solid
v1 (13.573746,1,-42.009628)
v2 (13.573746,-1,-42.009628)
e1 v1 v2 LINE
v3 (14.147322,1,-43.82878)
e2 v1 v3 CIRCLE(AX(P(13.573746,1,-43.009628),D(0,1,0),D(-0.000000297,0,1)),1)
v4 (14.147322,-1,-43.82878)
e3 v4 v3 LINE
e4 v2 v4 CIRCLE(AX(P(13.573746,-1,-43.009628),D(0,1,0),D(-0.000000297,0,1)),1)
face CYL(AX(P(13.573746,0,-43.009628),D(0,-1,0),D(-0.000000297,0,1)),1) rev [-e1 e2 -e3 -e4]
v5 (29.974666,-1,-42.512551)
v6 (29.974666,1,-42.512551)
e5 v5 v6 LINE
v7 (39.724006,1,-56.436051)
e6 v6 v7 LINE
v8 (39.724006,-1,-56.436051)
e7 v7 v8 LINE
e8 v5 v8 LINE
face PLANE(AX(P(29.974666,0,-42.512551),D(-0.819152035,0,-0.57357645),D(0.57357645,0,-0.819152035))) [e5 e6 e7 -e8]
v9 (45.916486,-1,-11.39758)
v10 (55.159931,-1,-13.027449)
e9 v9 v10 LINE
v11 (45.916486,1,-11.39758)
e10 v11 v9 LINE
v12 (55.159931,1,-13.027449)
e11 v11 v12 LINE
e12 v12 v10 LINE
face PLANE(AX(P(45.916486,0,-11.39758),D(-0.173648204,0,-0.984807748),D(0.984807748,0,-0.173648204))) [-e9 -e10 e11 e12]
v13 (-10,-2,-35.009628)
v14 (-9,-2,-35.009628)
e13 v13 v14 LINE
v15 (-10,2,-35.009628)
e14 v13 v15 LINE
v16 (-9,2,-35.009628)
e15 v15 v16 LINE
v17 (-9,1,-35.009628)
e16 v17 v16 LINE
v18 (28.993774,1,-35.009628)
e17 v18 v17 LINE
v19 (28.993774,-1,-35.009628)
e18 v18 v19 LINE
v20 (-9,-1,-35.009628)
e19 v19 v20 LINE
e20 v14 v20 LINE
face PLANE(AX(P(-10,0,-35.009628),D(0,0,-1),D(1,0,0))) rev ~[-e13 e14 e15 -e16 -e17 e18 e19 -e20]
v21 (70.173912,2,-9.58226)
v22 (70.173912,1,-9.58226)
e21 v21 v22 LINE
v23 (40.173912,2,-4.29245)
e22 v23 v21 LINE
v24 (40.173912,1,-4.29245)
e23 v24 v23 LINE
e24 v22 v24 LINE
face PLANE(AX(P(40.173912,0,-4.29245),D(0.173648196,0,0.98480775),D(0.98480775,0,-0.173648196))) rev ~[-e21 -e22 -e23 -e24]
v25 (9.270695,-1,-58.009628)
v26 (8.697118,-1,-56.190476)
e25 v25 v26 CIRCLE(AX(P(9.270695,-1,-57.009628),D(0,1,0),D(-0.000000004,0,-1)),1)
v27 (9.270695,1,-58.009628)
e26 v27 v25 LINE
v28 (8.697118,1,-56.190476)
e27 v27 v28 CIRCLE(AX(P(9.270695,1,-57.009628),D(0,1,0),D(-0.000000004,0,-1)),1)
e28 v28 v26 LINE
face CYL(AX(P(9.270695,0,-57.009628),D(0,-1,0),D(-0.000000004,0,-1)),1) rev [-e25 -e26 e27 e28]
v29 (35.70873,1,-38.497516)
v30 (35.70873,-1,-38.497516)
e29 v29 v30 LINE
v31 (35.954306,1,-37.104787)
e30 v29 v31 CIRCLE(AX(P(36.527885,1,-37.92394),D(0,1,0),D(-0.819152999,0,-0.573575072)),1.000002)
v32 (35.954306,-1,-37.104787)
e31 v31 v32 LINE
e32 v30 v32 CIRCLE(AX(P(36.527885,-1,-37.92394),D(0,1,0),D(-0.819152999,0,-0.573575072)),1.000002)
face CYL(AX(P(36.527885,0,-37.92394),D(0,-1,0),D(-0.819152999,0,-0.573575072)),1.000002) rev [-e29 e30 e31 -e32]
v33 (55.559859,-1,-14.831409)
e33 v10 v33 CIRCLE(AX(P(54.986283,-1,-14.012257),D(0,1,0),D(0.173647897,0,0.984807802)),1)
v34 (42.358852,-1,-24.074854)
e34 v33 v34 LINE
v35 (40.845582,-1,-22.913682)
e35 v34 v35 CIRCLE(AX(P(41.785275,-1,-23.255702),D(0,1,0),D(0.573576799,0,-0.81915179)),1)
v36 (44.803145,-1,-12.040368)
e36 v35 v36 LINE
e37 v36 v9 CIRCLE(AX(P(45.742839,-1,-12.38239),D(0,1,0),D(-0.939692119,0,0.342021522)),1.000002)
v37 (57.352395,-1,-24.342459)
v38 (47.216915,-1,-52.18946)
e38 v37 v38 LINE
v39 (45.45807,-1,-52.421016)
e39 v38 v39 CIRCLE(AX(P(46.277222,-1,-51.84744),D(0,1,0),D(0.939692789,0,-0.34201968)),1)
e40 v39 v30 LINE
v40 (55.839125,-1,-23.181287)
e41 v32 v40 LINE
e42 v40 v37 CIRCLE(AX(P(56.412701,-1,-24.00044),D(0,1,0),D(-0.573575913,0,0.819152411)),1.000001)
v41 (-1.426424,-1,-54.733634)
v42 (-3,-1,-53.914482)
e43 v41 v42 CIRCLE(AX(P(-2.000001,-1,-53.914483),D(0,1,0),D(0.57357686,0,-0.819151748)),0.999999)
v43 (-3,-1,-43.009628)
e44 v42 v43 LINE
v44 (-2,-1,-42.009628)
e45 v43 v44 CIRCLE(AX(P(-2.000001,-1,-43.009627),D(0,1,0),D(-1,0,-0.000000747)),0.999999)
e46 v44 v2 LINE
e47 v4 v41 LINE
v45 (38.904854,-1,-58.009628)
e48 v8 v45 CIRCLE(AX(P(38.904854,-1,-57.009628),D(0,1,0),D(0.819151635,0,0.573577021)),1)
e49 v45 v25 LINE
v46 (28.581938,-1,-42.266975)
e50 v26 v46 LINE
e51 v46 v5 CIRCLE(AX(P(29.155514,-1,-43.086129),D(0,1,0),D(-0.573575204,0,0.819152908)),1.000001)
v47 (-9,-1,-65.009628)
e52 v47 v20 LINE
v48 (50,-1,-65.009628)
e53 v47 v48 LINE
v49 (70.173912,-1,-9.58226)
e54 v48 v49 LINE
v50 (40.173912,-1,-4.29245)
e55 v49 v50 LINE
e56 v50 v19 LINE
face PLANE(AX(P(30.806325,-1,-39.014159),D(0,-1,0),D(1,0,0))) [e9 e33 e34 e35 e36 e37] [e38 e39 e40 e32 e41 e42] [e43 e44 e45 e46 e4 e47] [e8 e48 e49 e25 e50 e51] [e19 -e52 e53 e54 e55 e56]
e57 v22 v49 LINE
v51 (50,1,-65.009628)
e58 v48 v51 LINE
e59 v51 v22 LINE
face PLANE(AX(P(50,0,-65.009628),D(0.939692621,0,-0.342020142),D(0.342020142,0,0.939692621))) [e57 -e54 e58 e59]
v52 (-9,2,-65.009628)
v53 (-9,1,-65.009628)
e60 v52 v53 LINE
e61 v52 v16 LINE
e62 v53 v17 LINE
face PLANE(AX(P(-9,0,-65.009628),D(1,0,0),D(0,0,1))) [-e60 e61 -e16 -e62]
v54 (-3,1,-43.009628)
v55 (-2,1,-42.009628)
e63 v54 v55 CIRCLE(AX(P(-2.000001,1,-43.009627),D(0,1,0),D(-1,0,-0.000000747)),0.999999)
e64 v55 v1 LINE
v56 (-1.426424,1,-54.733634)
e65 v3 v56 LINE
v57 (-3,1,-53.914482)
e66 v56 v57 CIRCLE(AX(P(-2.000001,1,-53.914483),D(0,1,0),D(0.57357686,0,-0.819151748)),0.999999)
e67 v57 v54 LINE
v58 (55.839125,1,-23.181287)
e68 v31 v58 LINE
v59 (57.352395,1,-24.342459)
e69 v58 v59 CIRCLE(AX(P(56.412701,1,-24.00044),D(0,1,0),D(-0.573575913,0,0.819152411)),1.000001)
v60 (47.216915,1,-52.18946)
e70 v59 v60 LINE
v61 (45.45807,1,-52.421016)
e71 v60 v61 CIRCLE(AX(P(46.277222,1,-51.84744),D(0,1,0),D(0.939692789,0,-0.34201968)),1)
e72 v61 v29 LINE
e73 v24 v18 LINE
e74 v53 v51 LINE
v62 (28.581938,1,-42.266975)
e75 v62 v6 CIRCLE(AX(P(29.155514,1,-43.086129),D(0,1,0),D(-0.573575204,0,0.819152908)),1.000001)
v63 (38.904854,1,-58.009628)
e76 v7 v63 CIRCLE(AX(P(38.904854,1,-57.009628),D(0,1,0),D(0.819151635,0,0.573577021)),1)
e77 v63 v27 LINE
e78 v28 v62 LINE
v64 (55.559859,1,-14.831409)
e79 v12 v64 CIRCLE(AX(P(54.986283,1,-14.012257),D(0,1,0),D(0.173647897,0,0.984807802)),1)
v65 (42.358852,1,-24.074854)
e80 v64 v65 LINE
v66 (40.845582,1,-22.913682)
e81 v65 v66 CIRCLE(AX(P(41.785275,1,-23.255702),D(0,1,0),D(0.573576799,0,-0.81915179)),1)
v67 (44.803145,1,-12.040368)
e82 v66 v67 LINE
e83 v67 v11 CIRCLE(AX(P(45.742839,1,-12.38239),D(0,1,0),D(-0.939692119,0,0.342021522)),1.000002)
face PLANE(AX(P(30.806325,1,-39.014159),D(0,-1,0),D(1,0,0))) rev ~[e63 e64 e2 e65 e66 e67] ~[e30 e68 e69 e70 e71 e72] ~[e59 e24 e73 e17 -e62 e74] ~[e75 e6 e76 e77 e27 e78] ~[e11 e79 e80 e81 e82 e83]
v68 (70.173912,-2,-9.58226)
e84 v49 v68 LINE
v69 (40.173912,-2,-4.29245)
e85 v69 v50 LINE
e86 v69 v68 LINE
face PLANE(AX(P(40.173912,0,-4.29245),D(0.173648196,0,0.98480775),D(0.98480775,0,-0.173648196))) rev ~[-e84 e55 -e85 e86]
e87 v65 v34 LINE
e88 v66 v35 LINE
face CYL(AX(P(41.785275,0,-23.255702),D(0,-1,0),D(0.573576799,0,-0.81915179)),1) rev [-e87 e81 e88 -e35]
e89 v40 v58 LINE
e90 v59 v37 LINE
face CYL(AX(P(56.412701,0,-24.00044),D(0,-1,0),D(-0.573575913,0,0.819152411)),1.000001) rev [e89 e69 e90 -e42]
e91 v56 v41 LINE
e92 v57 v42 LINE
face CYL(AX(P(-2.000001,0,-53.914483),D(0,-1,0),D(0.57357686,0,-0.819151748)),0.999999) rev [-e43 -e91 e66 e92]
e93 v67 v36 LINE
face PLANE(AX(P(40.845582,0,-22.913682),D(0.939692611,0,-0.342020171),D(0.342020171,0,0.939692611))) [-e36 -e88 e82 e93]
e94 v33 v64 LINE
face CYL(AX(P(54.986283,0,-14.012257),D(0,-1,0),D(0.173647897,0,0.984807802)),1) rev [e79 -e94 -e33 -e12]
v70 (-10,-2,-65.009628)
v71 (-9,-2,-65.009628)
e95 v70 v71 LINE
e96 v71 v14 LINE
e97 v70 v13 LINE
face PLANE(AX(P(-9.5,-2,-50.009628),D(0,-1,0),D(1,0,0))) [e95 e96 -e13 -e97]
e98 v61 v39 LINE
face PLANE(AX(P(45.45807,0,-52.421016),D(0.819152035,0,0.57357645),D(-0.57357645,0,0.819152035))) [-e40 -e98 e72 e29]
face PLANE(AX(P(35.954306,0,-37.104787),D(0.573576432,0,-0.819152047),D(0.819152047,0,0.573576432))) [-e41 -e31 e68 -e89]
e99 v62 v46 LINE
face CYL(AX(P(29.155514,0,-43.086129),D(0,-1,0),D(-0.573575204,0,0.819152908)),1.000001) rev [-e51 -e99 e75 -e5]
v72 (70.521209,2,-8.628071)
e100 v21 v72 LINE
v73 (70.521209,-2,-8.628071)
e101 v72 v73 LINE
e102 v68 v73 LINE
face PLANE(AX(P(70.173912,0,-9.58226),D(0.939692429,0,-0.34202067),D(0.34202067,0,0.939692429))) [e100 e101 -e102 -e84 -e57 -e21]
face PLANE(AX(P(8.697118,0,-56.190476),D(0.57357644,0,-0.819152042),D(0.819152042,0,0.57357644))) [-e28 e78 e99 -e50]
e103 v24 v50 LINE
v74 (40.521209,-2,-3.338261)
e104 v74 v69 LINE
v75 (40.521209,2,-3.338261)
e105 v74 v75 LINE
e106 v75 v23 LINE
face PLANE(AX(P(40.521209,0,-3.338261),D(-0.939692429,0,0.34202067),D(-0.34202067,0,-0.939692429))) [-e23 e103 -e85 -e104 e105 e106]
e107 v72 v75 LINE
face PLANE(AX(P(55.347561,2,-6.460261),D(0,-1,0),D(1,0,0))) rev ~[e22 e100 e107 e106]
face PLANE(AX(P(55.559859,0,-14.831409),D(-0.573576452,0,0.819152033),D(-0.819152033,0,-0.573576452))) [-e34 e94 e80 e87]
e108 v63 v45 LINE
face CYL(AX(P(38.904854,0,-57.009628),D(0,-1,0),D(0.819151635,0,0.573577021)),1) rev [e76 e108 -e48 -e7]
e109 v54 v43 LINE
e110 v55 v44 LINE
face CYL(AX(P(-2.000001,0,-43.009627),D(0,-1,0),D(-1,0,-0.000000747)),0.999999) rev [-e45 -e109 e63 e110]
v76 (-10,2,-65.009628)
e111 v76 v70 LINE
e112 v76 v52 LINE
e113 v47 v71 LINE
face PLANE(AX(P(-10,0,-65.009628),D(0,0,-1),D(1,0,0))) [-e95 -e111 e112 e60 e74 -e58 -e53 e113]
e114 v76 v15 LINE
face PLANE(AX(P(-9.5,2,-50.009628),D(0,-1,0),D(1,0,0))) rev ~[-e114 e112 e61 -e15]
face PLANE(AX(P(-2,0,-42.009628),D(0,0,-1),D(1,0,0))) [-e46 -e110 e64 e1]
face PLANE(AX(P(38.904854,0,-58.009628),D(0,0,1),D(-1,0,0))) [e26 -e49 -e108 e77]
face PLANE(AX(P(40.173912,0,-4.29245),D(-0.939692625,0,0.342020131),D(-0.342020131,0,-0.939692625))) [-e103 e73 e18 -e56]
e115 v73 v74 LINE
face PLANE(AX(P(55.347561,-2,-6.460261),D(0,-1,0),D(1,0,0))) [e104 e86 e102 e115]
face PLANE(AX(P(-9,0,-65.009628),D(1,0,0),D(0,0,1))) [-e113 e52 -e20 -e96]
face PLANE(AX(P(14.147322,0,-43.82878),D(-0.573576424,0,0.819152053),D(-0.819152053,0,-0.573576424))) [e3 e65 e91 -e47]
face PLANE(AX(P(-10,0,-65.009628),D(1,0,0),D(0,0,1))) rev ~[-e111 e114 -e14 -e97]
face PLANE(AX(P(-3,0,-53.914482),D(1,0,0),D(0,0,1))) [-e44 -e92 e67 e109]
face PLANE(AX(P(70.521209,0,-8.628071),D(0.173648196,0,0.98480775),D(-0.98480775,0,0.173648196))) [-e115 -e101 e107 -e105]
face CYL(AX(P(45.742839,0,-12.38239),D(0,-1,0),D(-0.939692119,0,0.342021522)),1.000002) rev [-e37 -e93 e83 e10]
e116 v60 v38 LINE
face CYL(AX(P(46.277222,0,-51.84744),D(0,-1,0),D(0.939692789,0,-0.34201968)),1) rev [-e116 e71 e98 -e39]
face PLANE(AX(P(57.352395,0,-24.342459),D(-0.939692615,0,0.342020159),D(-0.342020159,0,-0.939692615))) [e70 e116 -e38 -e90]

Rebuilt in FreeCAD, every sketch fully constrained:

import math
import FreeCAD as App
import Part
import Sketcher
Q = App.Units.Quantity


def add_polygon(sketch, points):
    """Adds a closed chain of lines whose ends are joined by coincident constraints."""
    first, n = sketch.GeometryCount, len(points)
    for a, b in zip(points, points[1:] + points[:1]):
        sketch.addGeometry(Part.LineSegment(App.Vector(*a, 0), App.Vector(*b, 0)), False)
    for i in range(n):
        sketch.addConstraint(Sketcher.Constraint("Coincident", first + i, 2, first + (i + 1) % n, 1))

doc = App.newDocument("Part")
body = doc.addObject("PartDesign::Body", "Body")

sketch1 = body.newObject("Sketcher::SketchObject", "Sketch")
sketch1.AttachmentSupport = (doc.getObject("XZ_Plane"), [""])
sketch1.MapMode = "FlatFace"
add_polygon(sketch1, [(50, -65.009628), (70.173912, -9.58226), (70.521209, -8.628071), (40.521209, -3.338261), (40.173912, -4.29245), (28.993774, -35.009628), (-10, -35.009628), (-10, -65.009628)])
sketch1.addGeometry(Part.LineSegment(App.Vector(14.147322, -43.82878, 0), App.Vector(-1.426424, -54.733634, 0)), False)
sketch1.addGeometry(Part.ArcOfCircle(Part.Circle(App.Vector(-2.000001, -53.914483, 0), App.Vector(0, 0, 1), 0.999999), math.radians(179.99996), math.radians(305.00003)), False)
sketch1.addGeometry(Part.LineSegment(App.Vector(-3, -53.914482, 0), App.Vector(-3, -43.009628, 0)), False)
sketch1.addGeometry(Part.ArcOfCircle(Part.Circle(App.Vector(-2.000001, -43.009627, 0), App.Vector(0, 0, 1), 0.999999), math.radians(89.999957), math.radians(180.000043)), False)
sketch1.addGeometry(Part.LineSegment(App.Vector(-2, -42.009628, 0), App.Vector(13.573746, -42.009628, 0)), False)
sketch1.addGeometry(Part.ArcOfCircle(Part.Circle(App.Vector(13.573746, -43.009628, 0), App.Vector(0, 0, 1), 1), math.radians(-55.000041), math.radians(90.000017)), False)
sketch1.addGeometry(Part.LineSegment(App.Vector(29.974666, -42.512551, 0), App.Vector(39.724006, -56.436051, 0)), False)
sketch1.addGeometry(Part.ArcOfCircle(Part.Circle(App.Vector(38.904854, -57.009628, 0), App.Vector(0, 0, 1), 1), math.radians(-90.000022), math.radians(35.000041)), False)
sketch1.addGeometry(Part.LineSegment(App.Vector(38.904854, -58.009628, 0), App.Vector(9.270695, -58.009628, 0)), False)
sketch1.addGeometry(Part.ArcOfCircle(Part.Circle(App.Vector(9.270695, -57.009628, 0), App.Vector(0, 0, 1), 1), math.radians(125.000033), math.radians(270)), False)
sketch1.addGeometry(Part.LineSegment(App.Vector(8.697118, -56.190476, 0), App.Vector(28.581938, -42.266975, 0)), False)
sketch1.addGeometry(Part.ArcOfCircle(Part.Circle(App.Vector(29.155514, -43.086129, 0), App.Vector(0, 0, 1), 1.000001), math.radians(35.000048), math.radians(124.999914)), False)
sketch1.addGeometry(Part.ArcOfCircle(Part.Circle(App.Vector(56.412701, -24.00044, 0), App.Vector(0, 0, 1), 1.000001), math.radians(-19.99992), math.radians(124.999963)), False)
sketch1.addGeometry(Part.LineSegment(App.Vector(57.352395, -24.342459, 0), App.Vector(47.216915, -52.18946, 0)), False)
sketch1.addGeometry(Part.ArcOfCircle(Part.Circle(App.Vector(46.277222, -51.84744, 0), App.Vector(0, 0, 1), 1), math.radians(-145.00005), math.radians(-19.999972)), False)
sketch1.addGeometry(Part.LineSegment(App.Vector(45.45807, -52.421016, 0), App.Vector(35.70873, -38.497516, 0)), False)
sketch1.addGeometry(Part.ArcOfCircle(Part.Circle(App.Vector(36.527885, -37.92394, 0), App.Vector(0, 0, 1), 1.000002), math.radians(125.000071), math.radians(214.999905)), False)
sketch1.addGeometry(Part.LineSegment(App.Vector(35.954306, -37.104787, 0), App.Vector(55.839125, -23.181287, 0)), False)
sketch1.addGeometry(Part.LineSegment(App.Vector(55.559859, -14.831409, 0), App.Vector(42.358852, -24.074854, 0)), False)
sketch1.addGeometry(Part.ArcOfCircle(Part.Circle(App.Vector(41.785275, -23.255702, 0), App.Vector(0, 0, 1), 1), math.radians(160.000018), math.radians(305.000025)), False)
sketch1.addGeometry(Part.LineSegment(App.Vector(40.845582, -22.913682, 0), App.Vector(44.803145, -12.040368, 0)), False)
sketch1.addGeometry(Part.ArcOfCircle(Part.Circle(App.Vector(45.742839, -12.38239, 0), App.Vector(0, 0, 1), 1.000002), math.radians(80.000105), math.radians(159.999916)), False)
sketch1.addGeometry(Part.LineSegment(App.Vector(45.916486, -11.39758, 0), App.Vector(55.159931, -13.027449, 0)), False)
sketch1.addGeometry(Part.ArcOfCircle(Part.Circle(App.Vector(54.986283, -14.012257, 0), App.Vector(0, 0, 1), 1), math.radians(-55.000035), math.radians(80.000016)), False)
sketch1.addConstraint(Sketcher.Constraint("Tangent", 8, 2, 9, 2))
sketch1.addConstraint(Sketcher.Constraint("Tangent", 9, 1, 10, 1))
sketch1.addConstraint(Sketcher.Constraint("Tangent", 10, 2, 11, 2))
sketch1.addConstraint(Sketcher.Constraint("Tangent", 11, 1, 12, 1))
sketch1.addConstraint(Sketcher.Constraint("Tangent", 12, 2, 13, 2))
sketch1.addConstraint(Sketcher.Constraint("Tangent", 13, 1, 8, 1))
sketch1.addConstraint(Sketcher.Constraint("Tangent", 14, 2, 15, 2))
sketch1.addConstraint(Sketcher.Constraint("Tangent", 15, 1, 16, 1))
sketch1.addConstraint(Sketcher.Constraint("Tangent", 16, 2, 17, 2))
sketch1.addConstraint(Sketcher.Constraint("Tangent", 17, 1, 18, 1))
sketch1.addConstraint(Sketcher.Constraint("Tangent", 18, 2, 19, 2))
sketch1.addConstraint(Sketcher.Constraint("Tangent", 19, 1, 14, 1))
sketch1.addConstraint(Sketcher.Constraint("Tangent", 20, 1, 21, 1))
sketch1.addConstraint(Sketcher.Constraint("Tangent", 21, 2, 22, 2))
sketch1.addConstraint(Sketcher.Constraint("Tangent", 22, 1, 23, 1))
sketch1.addConstraint(Sketcher.Constraint("Tangent", 23, 2, 24, 2))
sketch1.addConstraint(Sketcher.Constraint("Tangent", 24, 1, 25, 1))
sketch1.addConstraint(Sketcher.Constraint("Tangent", 25, 2, 20, 2))
sketch1.addConstraint(Sketcher.Constraint("Tangent", 26, 2, 27, 2))
sketch1.addConstraint(Sketcher.Constraint("Tangent", 27, 1, 28, 1))
sketch1.addConstraint(Sketcher.Constraint("Tangent", 28, 2, 29, 2))
sketch1.addConstraint(Sketcher.Constraint("Tangent", 29, 1, 30, 1))
sketch1.addConstraint(Sketcher.Constraint("Tangent", 30, 2, 31, 2))
sketch1.addConstraint(Sketcher.Constraint("Tangent", 31, 1, 26, 1))
sketch1.addConstraint(Sketcher.Constraint("Horizontal", 5))
sketch1.addConstraint(Sketcher.Constraint("Vertical", 6))
sketch1.addConstraint(Sketcher.Constraint("Horizontal", 7))
sketch1.addConstraint(Sketcher.Constraint("Vertical", 10))
sketch1.addConstraint(Sketcher.Constraint("Horizontal", 12))
sketch1.addConstraint(Sketcher.Constraint("Horizontal", 16))
sketch1.addConstraint(Sketcher.Constraint("Equal", 9, 11))
sketch1.addConstraint(Sketcher.Constraint("Equal", 11, 13))
sketch1.addConstraint(Sketcher.Constraint("Equal", 13, 15))
sketch1.addConstraint(Sketcher.Constraint("Equal", 15, 17))
sketch1.addConstraint(Sketcher.Constraint("Equal", 17, 19))
sketch1.addConstraint(Sketcher.Constraint("Equal", 19, 20))
sketch1.addConstraint(Sketcher.Constraint("Equal", 20, 22))
sketch1.addConstraint(Sketcher.Constraint("Equal", 20, 24))
sketch1.addConstraint(Sketcher.Constraint("Equal", 24, 27))
sketch1.addConstraint(Sketcher.Constraint("Equal", 27, 29))
sketch1.addConstraint(Sketcher.Constraint("Equal", 27, 31))
sketch1.addConstraint(Sketcher.Constraint("Parallel", 0, 1))
sketch1.addConstraint(Sketcher.Constraint("Parallel", 1, 3))
sketch1.addConstraint(Sketcher.Constraint("Parallel", 3, 4))
sketch1.addConstraint(Sketcher.Constraint("Perpendicular", 8, 14))
sketch1.addConstraint(Sketcher.Constraint("Perpendicular", 14, 18))
sketch1.addConstraint(Sketcher.Constraint("Parallel", 4, 21))
sketch1.addConstraint(Sketcher.Constraint("Perpendicular", 18, 23))
sketch1.addConstraint(Sketcher.Constraint("Perpendicular", 23, 25))
sketch1.addConstraint(Sketcher.Constraint("Parallel", 25, 26))
sketch1.addConstraint(Sketcher.Constraint("Parallel", 21, 28))
sketch1.addConstraint(Sketcher.Constraint("Parallel", 2, 30))
sketch1.addConstraint(Sketcher.Constraint("Equal", 1, 3))
sketch1.addConstraint(Sketcher.Constraint("Equal", 14, 23))
sketch1.addConstraint(Sketcher.Constraint("Equal", 18, 25))
sketch1.addConstraint(Sketcher.Constraint("Radius", 9, Q("0.999999 mm")))
sketch1.addConstraint(Sketcher.Constraint("DistanceX", 7, 1, 7, 2, Q("60 mm")))
sketch1.addConstraint(Sketcher.Constraint("DistanceY", 6, 2, 6, 1, Q("30 mm")))
sketch1.addConstraint(Sketcher.Constraint("Angle", 0, Q("70 deg")))
sketch1.addConstraint(Sketcher.Constraint("Angle", 2, Q("169.999999 deg")))
sketch1.addConstraint(Sketcher.Constraint("DistanceX", 9, 3, -1, 1, Q("2.000001 mm")))
sketch1.addConstraint(Sketcher.Constraint("DistanceX", 5, 2, -1, 1, Q("10 mm")))
sketch1.addConstraint(Sketcher.Constraint("DistanceY", 15, 3, 13, 3, Q("14 mm")))
sketch1.addConstraint(Sketcher.Constraint("DistanceY", 13, 3, 4, 2, Q("8 mm")))
sketch1.addConstraint(Sketcher.Constraint("DistanceY", 22, 3, 20, 3, Q("27.847 mm")))
sketch1.addConstraint(Sketcher.Constraint("DistanceY", 0, 2, 2, 2, Q("6.243999 mm")))
sketch1.addConstraint(Sketcher.Constraint("Distance", 2, Q("30.462798 mm")))
sketch1.addConstraint(Sketcher.Constraint("DistanceX", -1, 1, 20, 3, Q("56.412701 mm")))
sketch1.addConstraint(Sketcher.Constraint("DistanceY", 27, 3, -1, 1, Q("23.255702 mm")))
sketch1.addConstraint(Sketcher.Constraint("DistanceX", 24, 3, 31, 3, Q("18.458399 mm")))
sketch1.addConstraint(Sketcher.Constraint("DistanceX", 4, 2, 27, 3, Q("12.791501 mm")))
sketch1.addConstraint(Sketcher.Constraint("DistanceY", 20, 1, 0, 2, Q("14.760199 mm")))
sketch1.addConstraint(Sketcher.Constraint("DistanceX", 12, 1, 12, 2, Q("15.573746 mm")))
sketch1.addConstraint(Sketcher.Constraint("DistanceY", 15, 3, -1, 1, Q("57.009628 mm")))
sketch1.addConstraint(Sketcher.Constraint("DistanceY", 20, 3, -1, 1, Q("24.00044 mm")))
sketch1.addConstraint(Sketcher.Constraint("DistanceX", -1, 1, 17, 1, Q("8.697118 mm")))
pad1 = body.newObject("PartDesign::Pad", "Pad")
pad1.Profile = sketch1
pad1.Length = 2
pad1.Midplane = True

sketch2 = body.newObject("Sketcher::SketchObject", "Sketch001")
sketch2.AttachmentSupport = (doc.getObject("XZ_Plane"), [""])
sketch2.MapMode = "FlatFace"
add_polygon(sketch2, [(40.173912, -4.29245), (70.173912, -9.58226), (70.521209, -8.628071), (40.521209, -3.338261)])
add_polygon(sketch2, [(-10, -35.009628), (-10, -65.009628), (-9, -65.009628), (-9, -35.009628)])
sketch2.addConstraint(Sketcher.Constraint("Vertical", 4))
sketch2.addConstraint(Sketcher.Constraint("Horizontal", 5))
sketch2.addConstraint(Sketcher.Constraint("Vertical", 6))
sketch2.addConstraint(Sketcher.Constraint("Horizontal", 7))
sketch2.addConstraint(Sketcher.Constraint("Parallel", 0, 2))
sketch2.addConstraint(Sketcher.Constraint("Parallel", 1, 3))
sketch2.addConstraint(Sketcher.Constraint("DistanceX", 5, 1, 5, 2, Q("1 mm")))
sketch2.addConstraint(Sketcher.Constraint("DistanceY", 4, 2, 4, 1, Q("30 mm")))
sketch2.addConstraint(Sketcher.Constraint("Angle", 0, Q("-10.000001 deg")))
sketch2.addConstraint(Sketcher.Constraint("DistanceX", 4, 2, -1, 1, Q("10 mm")))
sketch2.addConstraint(Sketcher.Constraint("DistanceX", 2, 2, 1, 2, Q("30 mm")))
sketch2.addConstraint(Sketcher.Constraint("DistanceY", 0, 2, 2, 2, Q("6.243999 mm")))
sketch2.addConstraint(Sketcher.Constraint("DistanceX", -1, 1, 0, 2, Q("70.173912 mm")))
sketch2.addConstraint(Sketcher.Constraint("DistanceY", 0, 2, -1, 1, Q("9.58226 mm")))
sketch2.addConstraint(Sketcher.Constraint("DistanceX", -1, 1, 1, 2, Q("70.521209 mm")))
sketch2.addConstraint(Sketcher.Constraint("DistanceY", 4, 2, -1, 1, Q("65.009628 mm")))
pad2 = body.newObject("PartDesign::Pad", "Pad001")
pad2.Profile = sketch2
pad2.Length = 4
pad2.Midplane = True

doc.recompute()
